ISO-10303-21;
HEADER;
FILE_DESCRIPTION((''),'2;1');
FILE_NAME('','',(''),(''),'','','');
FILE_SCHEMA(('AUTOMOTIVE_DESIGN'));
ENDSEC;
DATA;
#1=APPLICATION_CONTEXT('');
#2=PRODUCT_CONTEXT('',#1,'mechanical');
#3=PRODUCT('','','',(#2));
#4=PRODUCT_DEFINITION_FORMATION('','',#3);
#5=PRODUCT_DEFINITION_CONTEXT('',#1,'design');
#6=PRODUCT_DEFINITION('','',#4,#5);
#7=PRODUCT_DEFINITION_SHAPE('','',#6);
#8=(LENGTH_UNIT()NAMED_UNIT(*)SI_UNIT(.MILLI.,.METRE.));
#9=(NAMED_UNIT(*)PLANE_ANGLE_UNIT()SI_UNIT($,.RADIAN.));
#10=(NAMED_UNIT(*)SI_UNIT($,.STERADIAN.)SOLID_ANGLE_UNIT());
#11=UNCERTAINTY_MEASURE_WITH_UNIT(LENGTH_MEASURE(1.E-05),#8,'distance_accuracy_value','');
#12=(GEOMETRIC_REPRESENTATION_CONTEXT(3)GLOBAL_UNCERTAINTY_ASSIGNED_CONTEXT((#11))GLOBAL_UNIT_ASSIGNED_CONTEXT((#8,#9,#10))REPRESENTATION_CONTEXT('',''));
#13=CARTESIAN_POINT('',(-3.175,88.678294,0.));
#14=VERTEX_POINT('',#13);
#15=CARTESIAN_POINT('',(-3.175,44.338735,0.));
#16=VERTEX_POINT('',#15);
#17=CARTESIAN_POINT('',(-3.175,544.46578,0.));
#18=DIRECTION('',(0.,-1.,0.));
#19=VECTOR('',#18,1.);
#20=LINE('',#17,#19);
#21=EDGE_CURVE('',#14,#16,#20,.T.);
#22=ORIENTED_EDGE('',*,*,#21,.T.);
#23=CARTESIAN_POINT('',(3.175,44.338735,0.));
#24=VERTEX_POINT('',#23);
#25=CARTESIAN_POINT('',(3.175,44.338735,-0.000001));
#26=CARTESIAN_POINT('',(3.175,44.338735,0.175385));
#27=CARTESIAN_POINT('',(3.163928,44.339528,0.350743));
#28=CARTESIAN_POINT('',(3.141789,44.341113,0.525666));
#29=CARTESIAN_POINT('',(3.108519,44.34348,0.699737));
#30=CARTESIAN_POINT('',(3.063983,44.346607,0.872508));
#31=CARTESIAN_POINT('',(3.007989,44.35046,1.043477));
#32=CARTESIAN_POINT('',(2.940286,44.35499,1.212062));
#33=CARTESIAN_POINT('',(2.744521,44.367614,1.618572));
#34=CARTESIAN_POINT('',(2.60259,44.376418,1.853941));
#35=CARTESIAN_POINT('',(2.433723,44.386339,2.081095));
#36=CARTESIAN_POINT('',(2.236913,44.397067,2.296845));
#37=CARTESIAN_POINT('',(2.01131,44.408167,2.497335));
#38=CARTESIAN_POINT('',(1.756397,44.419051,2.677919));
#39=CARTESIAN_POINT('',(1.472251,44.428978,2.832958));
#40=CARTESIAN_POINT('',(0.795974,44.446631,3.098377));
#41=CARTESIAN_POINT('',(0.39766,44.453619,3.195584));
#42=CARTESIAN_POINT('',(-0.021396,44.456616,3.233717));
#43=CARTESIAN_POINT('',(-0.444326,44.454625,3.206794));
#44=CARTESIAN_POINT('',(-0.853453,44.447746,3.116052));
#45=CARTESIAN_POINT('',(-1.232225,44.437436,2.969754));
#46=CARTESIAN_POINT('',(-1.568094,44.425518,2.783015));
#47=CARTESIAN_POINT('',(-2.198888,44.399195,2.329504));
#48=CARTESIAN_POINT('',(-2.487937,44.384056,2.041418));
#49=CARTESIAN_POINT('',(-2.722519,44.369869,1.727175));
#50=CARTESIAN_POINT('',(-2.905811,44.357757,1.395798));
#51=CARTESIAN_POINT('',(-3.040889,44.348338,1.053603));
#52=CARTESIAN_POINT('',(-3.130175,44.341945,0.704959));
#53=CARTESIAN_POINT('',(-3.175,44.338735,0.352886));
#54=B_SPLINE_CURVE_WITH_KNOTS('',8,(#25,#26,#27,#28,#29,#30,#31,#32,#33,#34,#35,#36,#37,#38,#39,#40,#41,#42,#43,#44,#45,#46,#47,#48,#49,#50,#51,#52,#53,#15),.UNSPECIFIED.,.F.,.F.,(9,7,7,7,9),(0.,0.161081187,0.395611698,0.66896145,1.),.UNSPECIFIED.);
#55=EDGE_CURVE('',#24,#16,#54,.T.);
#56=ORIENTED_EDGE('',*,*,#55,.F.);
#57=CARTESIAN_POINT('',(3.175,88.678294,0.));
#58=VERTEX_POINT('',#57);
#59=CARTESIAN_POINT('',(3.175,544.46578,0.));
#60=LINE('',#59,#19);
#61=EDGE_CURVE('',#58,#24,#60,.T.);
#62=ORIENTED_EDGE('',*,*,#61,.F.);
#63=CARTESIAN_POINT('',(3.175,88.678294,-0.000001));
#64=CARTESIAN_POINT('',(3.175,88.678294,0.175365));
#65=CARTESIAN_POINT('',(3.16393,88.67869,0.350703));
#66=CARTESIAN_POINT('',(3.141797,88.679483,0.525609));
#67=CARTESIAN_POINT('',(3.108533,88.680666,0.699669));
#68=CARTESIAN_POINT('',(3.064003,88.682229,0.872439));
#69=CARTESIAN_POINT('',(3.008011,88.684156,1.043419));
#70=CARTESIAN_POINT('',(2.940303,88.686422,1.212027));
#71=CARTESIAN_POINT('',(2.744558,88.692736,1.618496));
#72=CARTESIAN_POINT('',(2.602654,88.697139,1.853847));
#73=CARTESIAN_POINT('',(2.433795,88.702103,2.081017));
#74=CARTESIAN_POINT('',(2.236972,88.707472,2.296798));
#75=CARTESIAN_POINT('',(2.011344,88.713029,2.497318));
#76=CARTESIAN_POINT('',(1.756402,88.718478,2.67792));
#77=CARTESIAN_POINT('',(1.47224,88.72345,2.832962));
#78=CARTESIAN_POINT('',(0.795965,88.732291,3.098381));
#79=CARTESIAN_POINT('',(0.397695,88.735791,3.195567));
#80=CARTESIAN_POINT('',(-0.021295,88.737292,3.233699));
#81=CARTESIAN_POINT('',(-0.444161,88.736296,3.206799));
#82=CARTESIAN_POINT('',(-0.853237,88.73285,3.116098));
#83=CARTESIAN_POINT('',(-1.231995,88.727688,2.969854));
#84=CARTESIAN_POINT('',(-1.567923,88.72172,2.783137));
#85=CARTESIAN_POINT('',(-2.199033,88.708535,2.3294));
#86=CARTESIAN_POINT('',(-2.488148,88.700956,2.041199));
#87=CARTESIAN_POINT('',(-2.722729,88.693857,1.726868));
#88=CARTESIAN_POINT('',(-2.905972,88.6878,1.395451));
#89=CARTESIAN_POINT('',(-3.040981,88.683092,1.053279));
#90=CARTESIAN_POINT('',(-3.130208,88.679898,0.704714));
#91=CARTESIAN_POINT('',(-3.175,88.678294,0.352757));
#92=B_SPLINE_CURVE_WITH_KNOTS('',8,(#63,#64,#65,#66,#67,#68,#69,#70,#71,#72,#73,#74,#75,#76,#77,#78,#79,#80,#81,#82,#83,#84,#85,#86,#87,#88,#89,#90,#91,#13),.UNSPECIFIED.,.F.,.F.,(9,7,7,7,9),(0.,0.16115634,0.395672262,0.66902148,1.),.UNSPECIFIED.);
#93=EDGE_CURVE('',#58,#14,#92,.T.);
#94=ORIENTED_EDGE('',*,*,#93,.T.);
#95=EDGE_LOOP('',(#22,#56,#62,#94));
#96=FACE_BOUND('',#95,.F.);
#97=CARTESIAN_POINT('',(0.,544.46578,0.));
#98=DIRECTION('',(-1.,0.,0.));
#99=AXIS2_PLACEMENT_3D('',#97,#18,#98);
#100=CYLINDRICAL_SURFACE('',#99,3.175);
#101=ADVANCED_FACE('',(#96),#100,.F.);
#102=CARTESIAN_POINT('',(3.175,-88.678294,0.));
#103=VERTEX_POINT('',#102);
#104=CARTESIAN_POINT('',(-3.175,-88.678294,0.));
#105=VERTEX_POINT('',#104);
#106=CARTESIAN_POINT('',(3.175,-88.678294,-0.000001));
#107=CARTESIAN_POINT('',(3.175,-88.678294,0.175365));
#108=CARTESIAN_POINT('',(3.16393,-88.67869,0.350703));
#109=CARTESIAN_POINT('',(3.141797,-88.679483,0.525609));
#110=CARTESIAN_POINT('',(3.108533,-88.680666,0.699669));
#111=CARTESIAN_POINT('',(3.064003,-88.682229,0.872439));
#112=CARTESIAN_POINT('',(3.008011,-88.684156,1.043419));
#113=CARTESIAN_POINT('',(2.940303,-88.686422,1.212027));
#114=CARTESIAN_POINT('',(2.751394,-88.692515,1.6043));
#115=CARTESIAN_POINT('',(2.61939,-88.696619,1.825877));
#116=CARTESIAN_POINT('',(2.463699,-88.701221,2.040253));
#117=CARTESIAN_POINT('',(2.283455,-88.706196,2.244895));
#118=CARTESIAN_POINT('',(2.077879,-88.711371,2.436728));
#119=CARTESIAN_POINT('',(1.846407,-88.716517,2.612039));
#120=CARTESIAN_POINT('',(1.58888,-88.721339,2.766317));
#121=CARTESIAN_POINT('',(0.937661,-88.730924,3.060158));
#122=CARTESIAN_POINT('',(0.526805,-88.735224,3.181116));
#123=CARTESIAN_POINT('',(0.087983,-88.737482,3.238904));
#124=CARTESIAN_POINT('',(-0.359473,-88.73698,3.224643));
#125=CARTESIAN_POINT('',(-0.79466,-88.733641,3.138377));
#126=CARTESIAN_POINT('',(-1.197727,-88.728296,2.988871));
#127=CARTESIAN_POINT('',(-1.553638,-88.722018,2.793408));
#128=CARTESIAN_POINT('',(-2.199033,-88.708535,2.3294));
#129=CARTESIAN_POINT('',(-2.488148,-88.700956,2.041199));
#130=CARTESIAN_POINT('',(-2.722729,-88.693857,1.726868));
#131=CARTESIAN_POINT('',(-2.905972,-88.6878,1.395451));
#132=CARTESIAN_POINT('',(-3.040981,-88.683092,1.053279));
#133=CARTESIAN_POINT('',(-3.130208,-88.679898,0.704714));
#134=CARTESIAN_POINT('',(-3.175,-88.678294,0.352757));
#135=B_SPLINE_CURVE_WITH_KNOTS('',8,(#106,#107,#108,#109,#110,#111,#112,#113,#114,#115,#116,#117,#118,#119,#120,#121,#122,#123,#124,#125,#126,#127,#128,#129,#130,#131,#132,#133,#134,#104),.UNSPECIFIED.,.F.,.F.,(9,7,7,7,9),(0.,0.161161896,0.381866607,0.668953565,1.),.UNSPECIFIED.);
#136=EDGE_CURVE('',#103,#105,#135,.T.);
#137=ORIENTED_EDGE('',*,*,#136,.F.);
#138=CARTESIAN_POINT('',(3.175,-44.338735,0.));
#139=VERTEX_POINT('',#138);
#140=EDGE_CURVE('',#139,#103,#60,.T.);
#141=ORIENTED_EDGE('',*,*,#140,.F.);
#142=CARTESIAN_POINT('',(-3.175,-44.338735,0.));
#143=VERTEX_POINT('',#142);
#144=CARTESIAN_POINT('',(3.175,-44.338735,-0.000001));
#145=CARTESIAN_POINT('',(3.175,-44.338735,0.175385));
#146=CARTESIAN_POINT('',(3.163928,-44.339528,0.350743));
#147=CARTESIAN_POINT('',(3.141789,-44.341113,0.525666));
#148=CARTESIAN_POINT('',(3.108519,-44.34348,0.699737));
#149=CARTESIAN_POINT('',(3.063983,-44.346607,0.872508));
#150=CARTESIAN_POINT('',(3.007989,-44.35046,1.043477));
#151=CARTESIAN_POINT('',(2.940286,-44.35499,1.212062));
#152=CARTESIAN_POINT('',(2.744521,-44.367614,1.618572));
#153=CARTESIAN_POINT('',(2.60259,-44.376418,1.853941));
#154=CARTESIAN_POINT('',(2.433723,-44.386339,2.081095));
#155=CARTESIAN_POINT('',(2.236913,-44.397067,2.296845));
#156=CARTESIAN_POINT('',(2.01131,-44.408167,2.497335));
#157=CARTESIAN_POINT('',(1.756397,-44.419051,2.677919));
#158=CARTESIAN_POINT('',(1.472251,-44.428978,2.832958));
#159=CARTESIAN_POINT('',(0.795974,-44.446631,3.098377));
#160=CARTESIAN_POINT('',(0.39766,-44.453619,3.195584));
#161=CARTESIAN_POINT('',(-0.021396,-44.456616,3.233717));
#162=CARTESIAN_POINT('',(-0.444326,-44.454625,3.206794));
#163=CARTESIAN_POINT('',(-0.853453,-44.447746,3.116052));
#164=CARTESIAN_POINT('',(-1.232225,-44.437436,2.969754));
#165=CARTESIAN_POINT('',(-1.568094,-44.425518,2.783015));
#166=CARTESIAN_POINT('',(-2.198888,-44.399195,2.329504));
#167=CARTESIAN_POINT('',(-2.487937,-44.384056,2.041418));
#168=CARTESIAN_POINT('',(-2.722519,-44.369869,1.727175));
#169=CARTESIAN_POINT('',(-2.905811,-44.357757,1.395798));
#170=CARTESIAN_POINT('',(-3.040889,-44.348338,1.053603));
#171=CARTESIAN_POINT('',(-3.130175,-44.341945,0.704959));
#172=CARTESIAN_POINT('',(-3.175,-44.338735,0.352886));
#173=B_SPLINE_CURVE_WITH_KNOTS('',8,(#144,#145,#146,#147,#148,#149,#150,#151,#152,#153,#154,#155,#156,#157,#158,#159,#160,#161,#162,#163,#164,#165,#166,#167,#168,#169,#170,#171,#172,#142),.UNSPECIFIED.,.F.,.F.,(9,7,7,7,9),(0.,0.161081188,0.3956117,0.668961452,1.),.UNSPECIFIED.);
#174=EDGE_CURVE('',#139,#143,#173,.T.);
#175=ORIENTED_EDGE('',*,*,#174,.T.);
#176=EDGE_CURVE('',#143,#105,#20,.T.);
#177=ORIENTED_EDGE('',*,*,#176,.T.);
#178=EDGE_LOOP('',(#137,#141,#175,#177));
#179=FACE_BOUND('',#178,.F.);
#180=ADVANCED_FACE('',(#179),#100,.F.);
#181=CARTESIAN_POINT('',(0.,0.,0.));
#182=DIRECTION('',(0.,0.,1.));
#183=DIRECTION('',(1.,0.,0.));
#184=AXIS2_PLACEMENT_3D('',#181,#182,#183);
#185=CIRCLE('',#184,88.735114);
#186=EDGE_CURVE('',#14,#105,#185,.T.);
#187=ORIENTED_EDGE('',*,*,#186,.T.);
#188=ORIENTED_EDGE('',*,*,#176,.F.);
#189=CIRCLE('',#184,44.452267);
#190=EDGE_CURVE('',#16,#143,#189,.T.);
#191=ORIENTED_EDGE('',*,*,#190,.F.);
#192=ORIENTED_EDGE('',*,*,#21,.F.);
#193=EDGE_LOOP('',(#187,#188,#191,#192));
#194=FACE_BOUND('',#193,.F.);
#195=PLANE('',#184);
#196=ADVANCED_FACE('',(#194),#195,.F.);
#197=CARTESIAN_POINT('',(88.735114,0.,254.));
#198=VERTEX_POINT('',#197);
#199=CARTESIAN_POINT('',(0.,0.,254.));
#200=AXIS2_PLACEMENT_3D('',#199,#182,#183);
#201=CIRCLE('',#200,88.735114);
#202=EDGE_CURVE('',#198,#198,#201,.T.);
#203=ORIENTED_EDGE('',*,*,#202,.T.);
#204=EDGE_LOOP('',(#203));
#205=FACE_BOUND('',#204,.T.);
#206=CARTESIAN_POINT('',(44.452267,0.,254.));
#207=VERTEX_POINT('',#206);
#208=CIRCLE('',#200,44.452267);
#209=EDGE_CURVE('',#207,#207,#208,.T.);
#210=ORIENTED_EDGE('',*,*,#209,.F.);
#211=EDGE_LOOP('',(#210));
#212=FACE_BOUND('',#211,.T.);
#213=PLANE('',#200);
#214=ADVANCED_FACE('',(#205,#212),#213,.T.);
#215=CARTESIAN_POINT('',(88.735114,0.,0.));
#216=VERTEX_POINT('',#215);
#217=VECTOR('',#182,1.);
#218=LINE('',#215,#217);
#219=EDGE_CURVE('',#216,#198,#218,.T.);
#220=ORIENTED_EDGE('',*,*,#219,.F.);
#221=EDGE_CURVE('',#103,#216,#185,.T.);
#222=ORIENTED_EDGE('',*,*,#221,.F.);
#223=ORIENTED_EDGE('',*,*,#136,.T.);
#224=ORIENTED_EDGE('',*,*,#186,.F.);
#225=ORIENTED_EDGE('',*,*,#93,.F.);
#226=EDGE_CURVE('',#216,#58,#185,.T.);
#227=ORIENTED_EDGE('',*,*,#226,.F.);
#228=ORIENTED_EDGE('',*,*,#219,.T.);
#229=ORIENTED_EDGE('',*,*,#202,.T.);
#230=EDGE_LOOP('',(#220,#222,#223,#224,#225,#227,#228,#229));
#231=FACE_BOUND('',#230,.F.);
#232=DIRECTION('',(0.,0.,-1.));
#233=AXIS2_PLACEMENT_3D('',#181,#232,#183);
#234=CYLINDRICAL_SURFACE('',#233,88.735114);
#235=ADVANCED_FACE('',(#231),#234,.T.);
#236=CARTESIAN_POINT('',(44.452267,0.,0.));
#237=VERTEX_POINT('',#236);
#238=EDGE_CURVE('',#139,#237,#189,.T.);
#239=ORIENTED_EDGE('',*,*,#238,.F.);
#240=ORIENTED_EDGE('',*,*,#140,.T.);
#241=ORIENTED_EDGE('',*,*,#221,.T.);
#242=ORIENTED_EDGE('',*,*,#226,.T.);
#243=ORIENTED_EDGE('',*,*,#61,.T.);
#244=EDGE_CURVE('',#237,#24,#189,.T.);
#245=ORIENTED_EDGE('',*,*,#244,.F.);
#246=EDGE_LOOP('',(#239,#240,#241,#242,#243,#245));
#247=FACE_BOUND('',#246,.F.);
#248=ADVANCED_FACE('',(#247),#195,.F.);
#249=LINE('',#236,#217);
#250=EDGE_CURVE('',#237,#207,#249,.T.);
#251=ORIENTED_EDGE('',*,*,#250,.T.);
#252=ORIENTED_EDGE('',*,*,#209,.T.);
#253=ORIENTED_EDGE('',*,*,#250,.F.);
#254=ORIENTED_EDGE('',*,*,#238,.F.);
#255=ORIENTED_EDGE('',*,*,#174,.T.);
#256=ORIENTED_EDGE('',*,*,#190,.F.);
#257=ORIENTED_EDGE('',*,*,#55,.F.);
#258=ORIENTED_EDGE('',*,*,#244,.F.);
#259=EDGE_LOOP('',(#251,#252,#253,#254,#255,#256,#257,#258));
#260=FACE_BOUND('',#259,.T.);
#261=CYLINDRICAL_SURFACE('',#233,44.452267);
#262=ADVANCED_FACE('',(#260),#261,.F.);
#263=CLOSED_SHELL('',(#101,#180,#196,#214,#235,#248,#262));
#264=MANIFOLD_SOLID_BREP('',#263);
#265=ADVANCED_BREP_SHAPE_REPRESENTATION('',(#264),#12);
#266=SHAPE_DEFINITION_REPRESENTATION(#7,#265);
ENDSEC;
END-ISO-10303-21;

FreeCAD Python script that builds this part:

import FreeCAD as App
import Part
import Sketcher
from FreeCAD import Vector
Q = App.Units.Quantity

doc = App.newDocument("Part")
body = doc.addObject("PartDesign::Body", "Body")

# Sketch on XY plane
sketch1 = doc.addObject("Sketcher::SketchObject", "Sketch")
body.addObject(sketch1)
sketch1.AttachmentSupport = (doc.XY_Plane, [""])
sketch1.MapMode = "FlatFace"
sketch1.addGeometry([
    Part.Circle(Vector(0, 0, 0), Vector(0, 0, 1), 88.735114),
    Part.Circle(Vector(0, 0, 0), Vector(0, 0, 1), 44.452267),
], False)
sketch1.addConstraint([
    Sketcher.Constraint("Coincident", 0, 3, -1, 1),
    Sketcher.Constraint("Coincident", 1, 3, -1, 1),
    Sketcher.Constraint("Diameter", 0, 177.470228),
    Sketcher.Constraint("Diameter", 1, 88.904534),
])
pad1 = doc.addObject("PartDesign::Pad", "Pad")
body.addObject(pad1)
pad1.Profile = sketch1
pad1.Length = Q("10 in")

# Sketch on XZ plane
sketch2 = doc.addObject("Sketcher::SketchObject", "Sketch001")
body.addObject(sketch2)
sketch2.AttachmentSupport = (doc.XZ_Plane, [""])
sketch2.MapMode = "FlatFace"
sketch2.AttachmentOffset = App.Placement(Vector(0, 0, -187.384048), App.Rotation())
sketch2.addGeometry(Part.Circle(Vector(0, 0, 0), Vector(0, 0, 1), 3.175), False)
sketch2.addConstraint([
    Sketcher.Constraint("Coincident", 0, 3, -1, 1),
    Sketcher.Constraint("Diameter", 0, Q("0.25 in")),
])
doc.recompute()
hole = doc.addObject("PartDesign::Hole", "Hole")
body.addObject(hole)
hole.Profile = sketch2
hole.ThreadType = "None"
hole.Diameter = Q("0.25 in")
hole.DepthType = "ThroughAll"
hole.Reversed = True

doc.recompute()
